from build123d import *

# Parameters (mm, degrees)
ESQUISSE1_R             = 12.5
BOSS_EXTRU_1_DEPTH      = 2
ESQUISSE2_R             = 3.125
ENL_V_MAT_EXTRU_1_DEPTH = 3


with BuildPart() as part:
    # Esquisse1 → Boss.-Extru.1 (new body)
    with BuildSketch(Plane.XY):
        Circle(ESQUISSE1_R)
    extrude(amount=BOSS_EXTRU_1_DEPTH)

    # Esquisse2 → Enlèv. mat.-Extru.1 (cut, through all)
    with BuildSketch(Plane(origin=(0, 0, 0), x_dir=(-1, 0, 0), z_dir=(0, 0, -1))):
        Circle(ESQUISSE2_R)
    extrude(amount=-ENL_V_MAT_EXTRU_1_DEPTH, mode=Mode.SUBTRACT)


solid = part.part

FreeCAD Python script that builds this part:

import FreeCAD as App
import Part
import Sketcher
Q = App.Units.Quantity

doc = App.newDocument("Part")
body = doc.addObject("PartDesign::Body", "Body")

# Sketch on XY plane
sketch1 = body.newObject("Sketcher::SketchObject", "Sketch")
sketch1.AttachmentSupport = (doc.getObject("XY_Plane"), [""])
sketch1.MapMode = "FlatFace"
sketch1.addGeometry(Part.Circle(App.Vector(0, 0, 0), App.Vector(0, 0, 1), 12.5), False)
sketch1.addConstraint([
    Sketcher.Constraint("Coincident", 0, 3, -1, 1),
    Sketcher.Constraint("Diameter", 0, Q("25 mm")),
])
pad1 = body.newObject("PartDesign::Pad", "Pad")
pad1.Profile = sketch1
pad1.Length = 2

# Sketch on XY plane
sketch2 = body.newObject("Sketcher::SketchObject", "Sketch001")
sketch2.AttachmentSupport = (doc.getObject("XY_Plane"), [""])
sketch2.MapMode = "FlatFace"
sketch2.addGeometry(Part.Circle(App.Vector(0, 0, 0), App.Vector(0, 0, 1), 3.125), False)
sketch2.addConstraint([
    Sketcher.Constraint("Coincident", 0, 3, -1, 1),
    Sketcher.Constraint("Diameter", 0, Q("6.25 mm")),
])
pocket1 = body.newObject("PartDesign::Pocket", "Pocket")
pocket1.Profile = sketch2
pocket1.Type = "ThroughAll"
pocket1.Reversed = True

doc.recompute()
